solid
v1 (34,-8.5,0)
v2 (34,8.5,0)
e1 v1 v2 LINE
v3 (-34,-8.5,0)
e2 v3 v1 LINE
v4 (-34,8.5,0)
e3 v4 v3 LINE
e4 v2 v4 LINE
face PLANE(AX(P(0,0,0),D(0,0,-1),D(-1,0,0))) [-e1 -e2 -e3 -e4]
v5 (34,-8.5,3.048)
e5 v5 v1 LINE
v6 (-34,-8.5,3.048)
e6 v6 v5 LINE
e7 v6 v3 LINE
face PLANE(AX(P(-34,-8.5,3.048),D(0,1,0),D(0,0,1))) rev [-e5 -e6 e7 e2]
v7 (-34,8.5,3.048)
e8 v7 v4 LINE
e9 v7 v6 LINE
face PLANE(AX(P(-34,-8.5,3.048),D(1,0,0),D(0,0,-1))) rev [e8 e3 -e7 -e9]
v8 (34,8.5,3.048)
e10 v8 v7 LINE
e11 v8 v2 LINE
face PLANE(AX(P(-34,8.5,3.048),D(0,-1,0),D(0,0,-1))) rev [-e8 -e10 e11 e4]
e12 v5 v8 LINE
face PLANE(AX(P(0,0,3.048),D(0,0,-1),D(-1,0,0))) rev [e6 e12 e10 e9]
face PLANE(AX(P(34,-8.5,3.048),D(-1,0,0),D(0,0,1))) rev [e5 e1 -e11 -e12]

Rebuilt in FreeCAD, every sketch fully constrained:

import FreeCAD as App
import Part
import Sketcher

V = App.Vector
Q = App.Units.Quantity


def add_polygon(sketch, points):
    """Adds a closed chain of lines whose ends are joined by coincident constraints."""
    first, n = sketch.GeometryCount, len(points)
    for a, b in zip(points, points[1:] + points[:1]):
        sketch.addGeometry(Part.LineSegment(App.Vector(*a, 0), App.Vector(*b, 0)), False)
    for i in range(n):
        sketch.addConstraint(Sketcher.Constraint("Coincident", first + i, 2, first + (i + 1) % n, 1))

doc = App.newDocument("Part")
body = doc.addObject("PartDesign::Body", "Body")

sketch1 = doc.addObject("Sketcher::SketchObject", "Sketch")
body.addObject(sketch1)
sketch1.AttachmentSupport = (doc.XY_Plane, [""])
sketch1.MapMode = "FlatFace"
add_polygon(sketch1, [(-34, 8), (-34, -8), (34, -8), (34, 8)])
sketch1.addConstraint([
    Sketcher.Constraint("Vertical", 0),
    Sketcher.Constraint("Horizontal", 1),
    Sketcher.Constraint("Vertical", 2),
    Sketcher.Constraint("Horizontal", 3),
    Sketcher.Constraint("Symmetric", 0, 2, 2, 2, -1, 1),
    Sketcher.Constraint("DistanceX", 1, 1, 1, 2, Q("68 mm")),
    Sketcher.Constraint("DistanceY", 0, 2, 0, 1, Q("17 mm")),
])
pad1 = doc.addObject("PartDesign::Pad", "Pad")
body.addObject(pad1)
pad1.Profile = sketch1
pad1.Length = 3.048

doc.recompute()
